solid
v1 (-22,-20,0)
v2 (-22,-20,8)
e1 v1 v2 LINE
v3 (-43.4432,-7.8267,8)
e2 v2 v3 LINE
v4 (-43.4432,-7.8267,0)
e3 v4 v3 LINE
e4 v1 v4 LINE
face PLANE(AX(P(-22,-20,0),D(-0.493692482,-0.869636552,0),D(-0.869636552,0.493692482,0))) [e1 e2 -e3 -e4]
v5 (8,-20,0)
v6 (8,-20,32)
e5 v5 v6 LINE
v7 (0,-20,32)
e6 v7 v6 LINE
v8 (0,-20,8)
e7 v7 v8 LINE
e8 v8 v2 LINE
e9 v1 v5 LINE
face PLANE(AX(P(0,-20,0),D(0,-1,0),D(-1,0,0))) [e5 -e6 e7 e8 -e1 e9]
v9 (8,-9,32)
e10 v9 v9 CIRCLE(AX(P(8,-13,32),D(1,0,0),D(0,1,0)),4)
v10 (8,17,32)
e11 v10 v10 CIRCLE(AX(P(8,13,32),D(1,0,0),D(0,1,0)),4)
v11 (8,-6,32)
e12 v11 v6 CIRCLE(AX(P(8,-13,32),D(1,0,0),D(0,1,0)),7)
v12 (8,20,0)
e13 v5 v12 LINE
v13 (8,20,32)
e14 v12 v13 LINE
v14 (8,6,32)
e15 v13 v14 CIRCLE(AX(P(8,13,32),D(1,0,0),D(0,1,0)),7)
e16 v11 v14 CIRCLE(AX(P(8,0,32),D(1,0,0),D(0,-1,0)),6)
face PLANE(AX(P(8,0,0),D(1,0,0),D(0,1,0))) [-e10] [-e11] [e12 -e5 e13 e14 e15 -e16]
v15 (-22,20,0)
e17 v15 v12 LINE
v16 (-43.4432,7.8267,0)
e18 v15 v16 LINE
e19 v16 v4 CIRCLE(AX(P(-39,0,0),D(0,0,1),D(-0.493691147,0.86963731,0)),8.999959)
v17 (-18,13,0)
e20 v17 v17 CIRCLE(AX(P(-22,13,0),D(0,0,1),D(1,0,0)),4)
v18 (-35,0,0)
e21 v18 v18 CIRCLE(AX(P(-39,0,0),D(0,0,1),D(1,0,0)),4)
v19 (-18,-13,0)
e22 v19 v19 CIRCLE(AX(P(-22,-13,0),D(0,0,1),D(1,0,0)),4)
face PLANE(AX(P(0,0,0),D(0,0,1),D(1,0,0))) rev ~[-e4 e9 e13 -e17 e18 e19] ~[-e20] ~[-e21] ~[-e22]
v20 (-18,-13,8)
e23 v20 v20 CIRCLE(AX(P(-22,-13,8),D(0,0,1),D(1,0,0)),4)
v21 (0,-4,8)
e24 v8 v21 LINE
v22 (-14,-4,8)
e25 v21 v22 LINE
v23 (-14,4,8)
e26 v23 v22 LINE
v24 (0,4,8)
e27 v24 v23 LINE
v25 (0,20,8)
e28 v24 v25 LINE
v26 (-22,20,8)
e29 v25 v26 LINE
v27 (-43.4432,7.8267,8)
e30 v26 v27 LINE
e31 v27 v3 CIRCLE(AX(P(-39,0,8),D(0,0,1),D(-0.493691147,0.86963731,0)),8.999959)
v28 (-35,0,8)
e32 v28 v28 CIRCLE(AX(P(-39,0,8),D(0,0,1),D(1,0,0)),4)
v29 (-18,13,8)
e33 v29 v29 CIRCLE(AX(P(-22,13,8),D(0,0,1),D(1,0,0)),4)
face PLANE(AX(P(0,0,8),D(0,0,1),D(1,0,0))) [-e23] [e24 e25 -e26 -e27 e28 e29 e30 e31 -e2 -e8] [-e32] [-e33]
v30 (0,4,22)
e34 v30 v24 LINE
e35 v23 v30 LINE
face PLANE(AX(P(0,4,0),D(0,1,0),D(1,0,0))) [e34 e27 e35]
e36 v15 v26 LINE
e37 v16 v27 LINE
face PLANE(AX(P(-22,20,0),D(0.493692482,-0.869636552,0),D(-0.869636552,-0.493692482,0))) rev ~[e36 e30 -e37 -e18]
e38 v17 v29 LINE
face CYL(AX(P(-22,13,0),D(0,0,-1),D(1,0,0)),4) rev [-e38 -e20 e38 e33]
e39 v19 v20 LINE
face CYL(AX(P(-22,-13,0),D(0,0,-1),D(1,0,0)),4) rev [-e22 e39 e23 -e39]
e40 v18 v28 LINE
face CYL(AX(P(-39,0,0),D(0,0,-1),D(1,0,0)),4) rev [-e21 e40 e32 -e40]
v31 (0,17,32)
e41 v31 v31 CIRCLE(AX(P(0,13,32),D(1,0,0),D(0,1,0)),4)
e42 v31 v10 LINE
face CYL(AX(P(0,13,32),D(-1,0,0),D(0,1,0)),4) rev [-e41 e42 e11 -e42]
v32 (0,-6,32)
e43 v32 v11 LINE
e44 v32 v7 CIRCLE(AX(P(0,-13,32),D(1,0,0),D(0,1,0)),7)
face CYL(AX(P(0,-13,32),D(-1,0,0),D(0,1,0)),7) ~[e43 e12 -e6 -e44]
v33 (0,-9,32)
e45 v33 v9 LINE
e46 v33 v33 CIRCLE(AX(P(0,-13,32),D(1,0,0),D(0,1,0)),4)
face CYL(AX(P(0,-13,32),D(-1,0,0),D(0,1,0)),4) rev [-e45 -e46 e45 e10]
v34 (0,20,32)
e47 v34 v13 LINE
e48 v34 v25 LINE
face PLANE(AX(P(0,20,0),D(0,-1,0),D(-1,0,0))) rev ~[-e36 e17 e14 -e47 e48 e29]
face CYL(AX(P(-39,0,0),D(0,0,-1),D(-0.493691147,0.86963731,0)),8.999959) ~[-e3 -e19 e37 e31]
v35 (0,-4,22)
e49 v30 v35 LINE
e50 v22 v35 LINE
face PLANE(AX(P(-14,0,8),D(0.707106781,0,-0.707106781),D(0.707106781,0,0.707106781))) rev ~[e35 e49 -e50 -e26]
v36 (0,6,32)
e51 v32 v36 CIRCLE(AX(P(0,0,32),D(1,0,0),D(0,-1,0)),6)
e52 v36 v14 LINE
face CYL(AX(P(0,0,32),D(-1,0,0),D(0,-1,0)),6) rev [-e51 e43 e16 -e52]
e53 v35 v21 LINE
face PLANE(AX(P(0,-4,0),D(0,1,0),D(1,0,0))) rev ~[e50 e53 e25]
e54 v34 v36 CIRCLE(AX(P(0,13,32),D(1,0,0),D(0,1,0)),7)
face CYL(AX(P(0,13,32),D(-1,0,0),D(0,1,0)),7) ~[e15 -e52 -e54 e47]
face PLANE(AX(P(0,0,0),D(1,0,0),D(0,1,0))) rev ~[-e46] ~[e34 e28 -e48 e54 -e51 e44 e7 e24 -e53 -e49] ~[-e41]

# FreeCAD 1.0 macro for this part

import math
import FreeCAD as App
import Part
import Sketcher
from FreeCAD import Vector


def add_polygon(sketch, points):
    """Adds a closed chain of lines whose ends are joined by coincident constraints."""
    first, n = sketch.GeometryCount, len(points)
    for a, b in zip(points, points[1:] + points[:1]):
        sketch.addGeometry(Part.LineSegment(App.Vector(*a, 0), App.Vector(*b, 0)), False)
    for i in range(n):
        sketch.addConstraint(Sketcher.Constraint("Coincident", first + i, 2, first + (i + 1) % n, 1))

doc = App.newDocument("Part")
body = doc.addObject("PartDesign::Body", "Body")

# Sketch on XY plane
sketch1 = body.newObject("Sketcher::SketchObject", "Sketch")
sketch1.AttachmentSupport = (doc.getObject("XY_Plane"), [""])
sketch1.MapMode = "FlatFace"
sketch1.addGeometry(Part.LineSegment(Vector(-22, -20, 0), Vector(0, -20, 0)), False)
sketch1.addGeometry(Part.LineSegment(Vector(0, -20, 0), Vector(0, 20, 0)), False)
sketch1.addGeometry(Part.LineSegment(Vector(0, 20, 0), Vector(-22, 20, 0)), False)
sketch1.addGeometry(Part.LineSegment(Vector(-22, 20, 0), Vector(-43.4432, 7.8267, 0)), False)
sketch1.addGeometry(Part.ArcOfCircle(Part.Circle(Vector(-39, 0, 0), Vector(0, 0, 1), 8.999959), math.radians(119.58348), math.radians(240.41652)), False)
sketch1.addGeometry(Part.LineSegment(Vector(-43.4432, -7.8267, 0), Vector(-22, -20, 0)), False)
sketch1.addGeometry(Part.Circle(Vector(-22, -13, 0), Vector(0, 0, 1), 4), False)
sketch1.addGeometry(Part.Circle(Vector(-39, 0, 0), Vector(0, 0, 1), 4), False)
sketch1.addGeometry(Part.Circle(Vector(-22, 13, 0), Vector(0, 0, 1), 4), False)
sketch1.addConstraint(Sketcher.Constraint("Coincident", 0, 2, 1, 1))
sketch1.addConstraint(Sketcher.Constraint("Coincident", 1, 2, 2, 1))
sketch1.addConstraint(Sketcher.Constraint("Coincident", 2, 2, 3, 1))
sketch1.addConstraint(Sketcher.Constraint("Tangent", 3, 2, 4, 1))
sketch1.addConstraint(Sketcher.Constraint("Tangent", 4, 2, 5, 1))
sketch1.addConstraint(Sketcher.Constraint("Coincident", 5, 2, 0, 1))
sketch1.addConstraint(Sketcher.Constraint("Horizontal", 0))
sketch1.addConstraint(Sketcher.Constraint("Vertical", 1))
sketch1.addConstraint(Sketcher.Constraint("Horizontal", 2))
sketch1.addConstraint(Sketcher.Constraint("Coincident", 7, 3, 4, 3))
sketch1.addConstraint(Sketcher.Constraint("Equal", 6, 7))
sketch1.addConstraint(Sketcher.Constraint("Equal", 7, 8))
sketch1.addConstraint(Sketcher.Constraint("Symmetric", 0, 2, 1, 2, -1, 1))
sketch1.addConstraint(Sketcher.Constraint("Symmetric", 6, 3, 8, 3, -1))
sketch1.addConstraint(Sketcher.Constraint("Symmetric", 3, 2, 4, 2, -1))
sketch1.addConstraint(Sketcher.Constraint("Vertical", 8, 3, 2, 2))
sketch1.addConstraint(Sketcher.Constraint("Diameter", 6, 8.0))
sketch1.addConstraint(Sketcher.Constraint("Radius", 4, 9.0))
sketch1.addConstraint(Sketcher.Constraint("DistanceX", 0, 1, 0, 2, 22.0))
sketch1.addConstraint(Sketcher.Constraint("DistanceY", 1, 1, 1, 2, 40.0))
sketch1.addConstraint(Sketcher.Constraint("DistanceX", 4, 3, -1, 1, 39.0))
sketch1.addConstraint(Sketcher.Constraint("DistanceY", 6, 3, 8, 3, 26.0))
pad1 = body.newObject("PartDesign::Pad", "Pad")
pad1.Profile = sketch1
pad1.Length = 8

# Sketch on YZ plane
sketch2 = body.newObject("Sketcher::SketchObject", "Sketch001")
sketch2.AttachmentSupport = (doc.getObject("YZ_Plane"), [""])
sketch2.MapMode = "FlatFace"
sketch2.addGeometry(Part.LineSegment(Vector(-20, 0, 0), Vector(20, 0, 0)), False)
sketch2.addGeometry(Part.LineSegment(Vector(20, 0, 0), Vector(20, 32, 0)), False)
sketch2.addGeometry(Part.ArcOfCircle(Part.Circle(Vector(13, 32, 0), Vector(0, 0, 1), 7), math.radians(0), math.radians(180)), False)
sketch2.addGeometry(Part.ArcOfCircle(Part.Circle(Vector(0, 32, 0), Vector(0, 0, 1), 6), math.radians(180), math.radians(360)), False)
sketch2.addGeometry(Part.ArcOfCircle(Part.Circle(Vector(-13, 32, 0), Vector(0, 0, 1), 7), math.radians(0), math.radians(180)), False)
sketch2.addGeometry(Part.LineSegment(Vector(-20, 32, 0), Vector(-20, 0, 0)), False)
sketch2.addGeometry(Part.Circle(Vector(13, 32, 0), Vector(0, 0, 1), 4), False)
sketch2.addGeometry(Part.Circle(Vector(-13, 32, 0), Vector(0, 0, 1), 4), False)
sketch2.addConstraint(Sketcher.Constraint("Coincident", 0, 2, 1, 1))
sketch2.addConstraint(Sketcher.Constraint("Tangent", 1, 2, 2, 1))
sketch2.addConstraint(Sketcher.Constraint("Tangent", 2, 2, 3, 2))
sketch2.addConstraint(Sketcher.Constraint("Tangent", 3, 1, 4, 1))
sketch2.addConstraint(Sketcher.Constraint("Tangent", 4, 2, 5, 1))
sketch2.addConstraint(Sketcher.Constraint("Coincident", 5, 2, 0, 1))
sketch2.addConstraint(Sketcher.Constraint("Horizontal", 0))
sketch2.addConstraint(Sketcher.Constraint("Vertical", 1))
sketch2.addConstraint(Sketcher.Constraint("Vertical", 5))
sketch2.addConstraint(Sketcher.Constraint("Coincident", 6, 3, 2, 3))
sketch2.addConstraint(Sketcher.Constraint("Coincident", 7, 3, 4, 3))
sketch2.addConstraint(Sketcher.Constraint("Equal", 2, 4))
sketch2.addConstraint(Sketcher.Constraint("Equal", 6, 7))
sketch2.addConstraint(Sketcher.Constraint("Symmetric", 0, 2, 5, 2, -1, 1))
sketch2.addConstraint(Sketcher.Constraint("Horizontal", 2, 3, 3, 3))
sketch2.addConstraint(Sketcher.Constraint("Horizontal", 3, 3, 4, 3))
sketch2.addConstraint(Sketcher.Constraint("Diameter", 6, 8.0))
sketch2.addConstraint(Sketcher.Constraint("DistanceY", 1, 1, 1, 2, 32.0))
sketch2.addConstraint(Sketcher.Constraint("Radius", 2, 7.0))
sketch2.addConstraint(Sketcher.Constraint("Radius", 3, 6.0))
pad2 = body.newObject("PartDesign::Pad", "Pad001")
pad2.Profile = sketch2
pad2.Length = 8

# Sketch on XZ plane
sketch3 = body.newObject("Sketcher::SketchObject", "Sketch002")
sketch3.AttachmentSupport = (doc.getObject("XZ_Plane"), [""])
sketch3.MapMode = "FlatFace"
add_polygon(sketch3, [(0, 22), (0, 8), (-14, 8)])  # lines 0-2
sketch3.addConstraint(Sketcher.Constraint("Vertical", 0))
sketch3.addConstraint(Sketcher.Constraint("Horizontal", 1))
sketch3.addConstraint(Sketcher.Constraint("PointOnObject", 0, 2, -2))
sketch3.addConstraint(Sketcher.Constraint("Equal", 1, 0))
sketch3.addConstraint(Sketcher.Constraint("DistanceX", 1, 2, 1, 1, 14.0))
sketch3.addConstraint(Sketcher.Constraint("DistanceY", -1, 1, 0, 2, 8.0))
pad3 = body.newObject("PartDesign::Pad", "Pad002")
pad3.Profile = sketch3
pad3.Length = 8
pad3.Midplane = True

doc.recompute()
